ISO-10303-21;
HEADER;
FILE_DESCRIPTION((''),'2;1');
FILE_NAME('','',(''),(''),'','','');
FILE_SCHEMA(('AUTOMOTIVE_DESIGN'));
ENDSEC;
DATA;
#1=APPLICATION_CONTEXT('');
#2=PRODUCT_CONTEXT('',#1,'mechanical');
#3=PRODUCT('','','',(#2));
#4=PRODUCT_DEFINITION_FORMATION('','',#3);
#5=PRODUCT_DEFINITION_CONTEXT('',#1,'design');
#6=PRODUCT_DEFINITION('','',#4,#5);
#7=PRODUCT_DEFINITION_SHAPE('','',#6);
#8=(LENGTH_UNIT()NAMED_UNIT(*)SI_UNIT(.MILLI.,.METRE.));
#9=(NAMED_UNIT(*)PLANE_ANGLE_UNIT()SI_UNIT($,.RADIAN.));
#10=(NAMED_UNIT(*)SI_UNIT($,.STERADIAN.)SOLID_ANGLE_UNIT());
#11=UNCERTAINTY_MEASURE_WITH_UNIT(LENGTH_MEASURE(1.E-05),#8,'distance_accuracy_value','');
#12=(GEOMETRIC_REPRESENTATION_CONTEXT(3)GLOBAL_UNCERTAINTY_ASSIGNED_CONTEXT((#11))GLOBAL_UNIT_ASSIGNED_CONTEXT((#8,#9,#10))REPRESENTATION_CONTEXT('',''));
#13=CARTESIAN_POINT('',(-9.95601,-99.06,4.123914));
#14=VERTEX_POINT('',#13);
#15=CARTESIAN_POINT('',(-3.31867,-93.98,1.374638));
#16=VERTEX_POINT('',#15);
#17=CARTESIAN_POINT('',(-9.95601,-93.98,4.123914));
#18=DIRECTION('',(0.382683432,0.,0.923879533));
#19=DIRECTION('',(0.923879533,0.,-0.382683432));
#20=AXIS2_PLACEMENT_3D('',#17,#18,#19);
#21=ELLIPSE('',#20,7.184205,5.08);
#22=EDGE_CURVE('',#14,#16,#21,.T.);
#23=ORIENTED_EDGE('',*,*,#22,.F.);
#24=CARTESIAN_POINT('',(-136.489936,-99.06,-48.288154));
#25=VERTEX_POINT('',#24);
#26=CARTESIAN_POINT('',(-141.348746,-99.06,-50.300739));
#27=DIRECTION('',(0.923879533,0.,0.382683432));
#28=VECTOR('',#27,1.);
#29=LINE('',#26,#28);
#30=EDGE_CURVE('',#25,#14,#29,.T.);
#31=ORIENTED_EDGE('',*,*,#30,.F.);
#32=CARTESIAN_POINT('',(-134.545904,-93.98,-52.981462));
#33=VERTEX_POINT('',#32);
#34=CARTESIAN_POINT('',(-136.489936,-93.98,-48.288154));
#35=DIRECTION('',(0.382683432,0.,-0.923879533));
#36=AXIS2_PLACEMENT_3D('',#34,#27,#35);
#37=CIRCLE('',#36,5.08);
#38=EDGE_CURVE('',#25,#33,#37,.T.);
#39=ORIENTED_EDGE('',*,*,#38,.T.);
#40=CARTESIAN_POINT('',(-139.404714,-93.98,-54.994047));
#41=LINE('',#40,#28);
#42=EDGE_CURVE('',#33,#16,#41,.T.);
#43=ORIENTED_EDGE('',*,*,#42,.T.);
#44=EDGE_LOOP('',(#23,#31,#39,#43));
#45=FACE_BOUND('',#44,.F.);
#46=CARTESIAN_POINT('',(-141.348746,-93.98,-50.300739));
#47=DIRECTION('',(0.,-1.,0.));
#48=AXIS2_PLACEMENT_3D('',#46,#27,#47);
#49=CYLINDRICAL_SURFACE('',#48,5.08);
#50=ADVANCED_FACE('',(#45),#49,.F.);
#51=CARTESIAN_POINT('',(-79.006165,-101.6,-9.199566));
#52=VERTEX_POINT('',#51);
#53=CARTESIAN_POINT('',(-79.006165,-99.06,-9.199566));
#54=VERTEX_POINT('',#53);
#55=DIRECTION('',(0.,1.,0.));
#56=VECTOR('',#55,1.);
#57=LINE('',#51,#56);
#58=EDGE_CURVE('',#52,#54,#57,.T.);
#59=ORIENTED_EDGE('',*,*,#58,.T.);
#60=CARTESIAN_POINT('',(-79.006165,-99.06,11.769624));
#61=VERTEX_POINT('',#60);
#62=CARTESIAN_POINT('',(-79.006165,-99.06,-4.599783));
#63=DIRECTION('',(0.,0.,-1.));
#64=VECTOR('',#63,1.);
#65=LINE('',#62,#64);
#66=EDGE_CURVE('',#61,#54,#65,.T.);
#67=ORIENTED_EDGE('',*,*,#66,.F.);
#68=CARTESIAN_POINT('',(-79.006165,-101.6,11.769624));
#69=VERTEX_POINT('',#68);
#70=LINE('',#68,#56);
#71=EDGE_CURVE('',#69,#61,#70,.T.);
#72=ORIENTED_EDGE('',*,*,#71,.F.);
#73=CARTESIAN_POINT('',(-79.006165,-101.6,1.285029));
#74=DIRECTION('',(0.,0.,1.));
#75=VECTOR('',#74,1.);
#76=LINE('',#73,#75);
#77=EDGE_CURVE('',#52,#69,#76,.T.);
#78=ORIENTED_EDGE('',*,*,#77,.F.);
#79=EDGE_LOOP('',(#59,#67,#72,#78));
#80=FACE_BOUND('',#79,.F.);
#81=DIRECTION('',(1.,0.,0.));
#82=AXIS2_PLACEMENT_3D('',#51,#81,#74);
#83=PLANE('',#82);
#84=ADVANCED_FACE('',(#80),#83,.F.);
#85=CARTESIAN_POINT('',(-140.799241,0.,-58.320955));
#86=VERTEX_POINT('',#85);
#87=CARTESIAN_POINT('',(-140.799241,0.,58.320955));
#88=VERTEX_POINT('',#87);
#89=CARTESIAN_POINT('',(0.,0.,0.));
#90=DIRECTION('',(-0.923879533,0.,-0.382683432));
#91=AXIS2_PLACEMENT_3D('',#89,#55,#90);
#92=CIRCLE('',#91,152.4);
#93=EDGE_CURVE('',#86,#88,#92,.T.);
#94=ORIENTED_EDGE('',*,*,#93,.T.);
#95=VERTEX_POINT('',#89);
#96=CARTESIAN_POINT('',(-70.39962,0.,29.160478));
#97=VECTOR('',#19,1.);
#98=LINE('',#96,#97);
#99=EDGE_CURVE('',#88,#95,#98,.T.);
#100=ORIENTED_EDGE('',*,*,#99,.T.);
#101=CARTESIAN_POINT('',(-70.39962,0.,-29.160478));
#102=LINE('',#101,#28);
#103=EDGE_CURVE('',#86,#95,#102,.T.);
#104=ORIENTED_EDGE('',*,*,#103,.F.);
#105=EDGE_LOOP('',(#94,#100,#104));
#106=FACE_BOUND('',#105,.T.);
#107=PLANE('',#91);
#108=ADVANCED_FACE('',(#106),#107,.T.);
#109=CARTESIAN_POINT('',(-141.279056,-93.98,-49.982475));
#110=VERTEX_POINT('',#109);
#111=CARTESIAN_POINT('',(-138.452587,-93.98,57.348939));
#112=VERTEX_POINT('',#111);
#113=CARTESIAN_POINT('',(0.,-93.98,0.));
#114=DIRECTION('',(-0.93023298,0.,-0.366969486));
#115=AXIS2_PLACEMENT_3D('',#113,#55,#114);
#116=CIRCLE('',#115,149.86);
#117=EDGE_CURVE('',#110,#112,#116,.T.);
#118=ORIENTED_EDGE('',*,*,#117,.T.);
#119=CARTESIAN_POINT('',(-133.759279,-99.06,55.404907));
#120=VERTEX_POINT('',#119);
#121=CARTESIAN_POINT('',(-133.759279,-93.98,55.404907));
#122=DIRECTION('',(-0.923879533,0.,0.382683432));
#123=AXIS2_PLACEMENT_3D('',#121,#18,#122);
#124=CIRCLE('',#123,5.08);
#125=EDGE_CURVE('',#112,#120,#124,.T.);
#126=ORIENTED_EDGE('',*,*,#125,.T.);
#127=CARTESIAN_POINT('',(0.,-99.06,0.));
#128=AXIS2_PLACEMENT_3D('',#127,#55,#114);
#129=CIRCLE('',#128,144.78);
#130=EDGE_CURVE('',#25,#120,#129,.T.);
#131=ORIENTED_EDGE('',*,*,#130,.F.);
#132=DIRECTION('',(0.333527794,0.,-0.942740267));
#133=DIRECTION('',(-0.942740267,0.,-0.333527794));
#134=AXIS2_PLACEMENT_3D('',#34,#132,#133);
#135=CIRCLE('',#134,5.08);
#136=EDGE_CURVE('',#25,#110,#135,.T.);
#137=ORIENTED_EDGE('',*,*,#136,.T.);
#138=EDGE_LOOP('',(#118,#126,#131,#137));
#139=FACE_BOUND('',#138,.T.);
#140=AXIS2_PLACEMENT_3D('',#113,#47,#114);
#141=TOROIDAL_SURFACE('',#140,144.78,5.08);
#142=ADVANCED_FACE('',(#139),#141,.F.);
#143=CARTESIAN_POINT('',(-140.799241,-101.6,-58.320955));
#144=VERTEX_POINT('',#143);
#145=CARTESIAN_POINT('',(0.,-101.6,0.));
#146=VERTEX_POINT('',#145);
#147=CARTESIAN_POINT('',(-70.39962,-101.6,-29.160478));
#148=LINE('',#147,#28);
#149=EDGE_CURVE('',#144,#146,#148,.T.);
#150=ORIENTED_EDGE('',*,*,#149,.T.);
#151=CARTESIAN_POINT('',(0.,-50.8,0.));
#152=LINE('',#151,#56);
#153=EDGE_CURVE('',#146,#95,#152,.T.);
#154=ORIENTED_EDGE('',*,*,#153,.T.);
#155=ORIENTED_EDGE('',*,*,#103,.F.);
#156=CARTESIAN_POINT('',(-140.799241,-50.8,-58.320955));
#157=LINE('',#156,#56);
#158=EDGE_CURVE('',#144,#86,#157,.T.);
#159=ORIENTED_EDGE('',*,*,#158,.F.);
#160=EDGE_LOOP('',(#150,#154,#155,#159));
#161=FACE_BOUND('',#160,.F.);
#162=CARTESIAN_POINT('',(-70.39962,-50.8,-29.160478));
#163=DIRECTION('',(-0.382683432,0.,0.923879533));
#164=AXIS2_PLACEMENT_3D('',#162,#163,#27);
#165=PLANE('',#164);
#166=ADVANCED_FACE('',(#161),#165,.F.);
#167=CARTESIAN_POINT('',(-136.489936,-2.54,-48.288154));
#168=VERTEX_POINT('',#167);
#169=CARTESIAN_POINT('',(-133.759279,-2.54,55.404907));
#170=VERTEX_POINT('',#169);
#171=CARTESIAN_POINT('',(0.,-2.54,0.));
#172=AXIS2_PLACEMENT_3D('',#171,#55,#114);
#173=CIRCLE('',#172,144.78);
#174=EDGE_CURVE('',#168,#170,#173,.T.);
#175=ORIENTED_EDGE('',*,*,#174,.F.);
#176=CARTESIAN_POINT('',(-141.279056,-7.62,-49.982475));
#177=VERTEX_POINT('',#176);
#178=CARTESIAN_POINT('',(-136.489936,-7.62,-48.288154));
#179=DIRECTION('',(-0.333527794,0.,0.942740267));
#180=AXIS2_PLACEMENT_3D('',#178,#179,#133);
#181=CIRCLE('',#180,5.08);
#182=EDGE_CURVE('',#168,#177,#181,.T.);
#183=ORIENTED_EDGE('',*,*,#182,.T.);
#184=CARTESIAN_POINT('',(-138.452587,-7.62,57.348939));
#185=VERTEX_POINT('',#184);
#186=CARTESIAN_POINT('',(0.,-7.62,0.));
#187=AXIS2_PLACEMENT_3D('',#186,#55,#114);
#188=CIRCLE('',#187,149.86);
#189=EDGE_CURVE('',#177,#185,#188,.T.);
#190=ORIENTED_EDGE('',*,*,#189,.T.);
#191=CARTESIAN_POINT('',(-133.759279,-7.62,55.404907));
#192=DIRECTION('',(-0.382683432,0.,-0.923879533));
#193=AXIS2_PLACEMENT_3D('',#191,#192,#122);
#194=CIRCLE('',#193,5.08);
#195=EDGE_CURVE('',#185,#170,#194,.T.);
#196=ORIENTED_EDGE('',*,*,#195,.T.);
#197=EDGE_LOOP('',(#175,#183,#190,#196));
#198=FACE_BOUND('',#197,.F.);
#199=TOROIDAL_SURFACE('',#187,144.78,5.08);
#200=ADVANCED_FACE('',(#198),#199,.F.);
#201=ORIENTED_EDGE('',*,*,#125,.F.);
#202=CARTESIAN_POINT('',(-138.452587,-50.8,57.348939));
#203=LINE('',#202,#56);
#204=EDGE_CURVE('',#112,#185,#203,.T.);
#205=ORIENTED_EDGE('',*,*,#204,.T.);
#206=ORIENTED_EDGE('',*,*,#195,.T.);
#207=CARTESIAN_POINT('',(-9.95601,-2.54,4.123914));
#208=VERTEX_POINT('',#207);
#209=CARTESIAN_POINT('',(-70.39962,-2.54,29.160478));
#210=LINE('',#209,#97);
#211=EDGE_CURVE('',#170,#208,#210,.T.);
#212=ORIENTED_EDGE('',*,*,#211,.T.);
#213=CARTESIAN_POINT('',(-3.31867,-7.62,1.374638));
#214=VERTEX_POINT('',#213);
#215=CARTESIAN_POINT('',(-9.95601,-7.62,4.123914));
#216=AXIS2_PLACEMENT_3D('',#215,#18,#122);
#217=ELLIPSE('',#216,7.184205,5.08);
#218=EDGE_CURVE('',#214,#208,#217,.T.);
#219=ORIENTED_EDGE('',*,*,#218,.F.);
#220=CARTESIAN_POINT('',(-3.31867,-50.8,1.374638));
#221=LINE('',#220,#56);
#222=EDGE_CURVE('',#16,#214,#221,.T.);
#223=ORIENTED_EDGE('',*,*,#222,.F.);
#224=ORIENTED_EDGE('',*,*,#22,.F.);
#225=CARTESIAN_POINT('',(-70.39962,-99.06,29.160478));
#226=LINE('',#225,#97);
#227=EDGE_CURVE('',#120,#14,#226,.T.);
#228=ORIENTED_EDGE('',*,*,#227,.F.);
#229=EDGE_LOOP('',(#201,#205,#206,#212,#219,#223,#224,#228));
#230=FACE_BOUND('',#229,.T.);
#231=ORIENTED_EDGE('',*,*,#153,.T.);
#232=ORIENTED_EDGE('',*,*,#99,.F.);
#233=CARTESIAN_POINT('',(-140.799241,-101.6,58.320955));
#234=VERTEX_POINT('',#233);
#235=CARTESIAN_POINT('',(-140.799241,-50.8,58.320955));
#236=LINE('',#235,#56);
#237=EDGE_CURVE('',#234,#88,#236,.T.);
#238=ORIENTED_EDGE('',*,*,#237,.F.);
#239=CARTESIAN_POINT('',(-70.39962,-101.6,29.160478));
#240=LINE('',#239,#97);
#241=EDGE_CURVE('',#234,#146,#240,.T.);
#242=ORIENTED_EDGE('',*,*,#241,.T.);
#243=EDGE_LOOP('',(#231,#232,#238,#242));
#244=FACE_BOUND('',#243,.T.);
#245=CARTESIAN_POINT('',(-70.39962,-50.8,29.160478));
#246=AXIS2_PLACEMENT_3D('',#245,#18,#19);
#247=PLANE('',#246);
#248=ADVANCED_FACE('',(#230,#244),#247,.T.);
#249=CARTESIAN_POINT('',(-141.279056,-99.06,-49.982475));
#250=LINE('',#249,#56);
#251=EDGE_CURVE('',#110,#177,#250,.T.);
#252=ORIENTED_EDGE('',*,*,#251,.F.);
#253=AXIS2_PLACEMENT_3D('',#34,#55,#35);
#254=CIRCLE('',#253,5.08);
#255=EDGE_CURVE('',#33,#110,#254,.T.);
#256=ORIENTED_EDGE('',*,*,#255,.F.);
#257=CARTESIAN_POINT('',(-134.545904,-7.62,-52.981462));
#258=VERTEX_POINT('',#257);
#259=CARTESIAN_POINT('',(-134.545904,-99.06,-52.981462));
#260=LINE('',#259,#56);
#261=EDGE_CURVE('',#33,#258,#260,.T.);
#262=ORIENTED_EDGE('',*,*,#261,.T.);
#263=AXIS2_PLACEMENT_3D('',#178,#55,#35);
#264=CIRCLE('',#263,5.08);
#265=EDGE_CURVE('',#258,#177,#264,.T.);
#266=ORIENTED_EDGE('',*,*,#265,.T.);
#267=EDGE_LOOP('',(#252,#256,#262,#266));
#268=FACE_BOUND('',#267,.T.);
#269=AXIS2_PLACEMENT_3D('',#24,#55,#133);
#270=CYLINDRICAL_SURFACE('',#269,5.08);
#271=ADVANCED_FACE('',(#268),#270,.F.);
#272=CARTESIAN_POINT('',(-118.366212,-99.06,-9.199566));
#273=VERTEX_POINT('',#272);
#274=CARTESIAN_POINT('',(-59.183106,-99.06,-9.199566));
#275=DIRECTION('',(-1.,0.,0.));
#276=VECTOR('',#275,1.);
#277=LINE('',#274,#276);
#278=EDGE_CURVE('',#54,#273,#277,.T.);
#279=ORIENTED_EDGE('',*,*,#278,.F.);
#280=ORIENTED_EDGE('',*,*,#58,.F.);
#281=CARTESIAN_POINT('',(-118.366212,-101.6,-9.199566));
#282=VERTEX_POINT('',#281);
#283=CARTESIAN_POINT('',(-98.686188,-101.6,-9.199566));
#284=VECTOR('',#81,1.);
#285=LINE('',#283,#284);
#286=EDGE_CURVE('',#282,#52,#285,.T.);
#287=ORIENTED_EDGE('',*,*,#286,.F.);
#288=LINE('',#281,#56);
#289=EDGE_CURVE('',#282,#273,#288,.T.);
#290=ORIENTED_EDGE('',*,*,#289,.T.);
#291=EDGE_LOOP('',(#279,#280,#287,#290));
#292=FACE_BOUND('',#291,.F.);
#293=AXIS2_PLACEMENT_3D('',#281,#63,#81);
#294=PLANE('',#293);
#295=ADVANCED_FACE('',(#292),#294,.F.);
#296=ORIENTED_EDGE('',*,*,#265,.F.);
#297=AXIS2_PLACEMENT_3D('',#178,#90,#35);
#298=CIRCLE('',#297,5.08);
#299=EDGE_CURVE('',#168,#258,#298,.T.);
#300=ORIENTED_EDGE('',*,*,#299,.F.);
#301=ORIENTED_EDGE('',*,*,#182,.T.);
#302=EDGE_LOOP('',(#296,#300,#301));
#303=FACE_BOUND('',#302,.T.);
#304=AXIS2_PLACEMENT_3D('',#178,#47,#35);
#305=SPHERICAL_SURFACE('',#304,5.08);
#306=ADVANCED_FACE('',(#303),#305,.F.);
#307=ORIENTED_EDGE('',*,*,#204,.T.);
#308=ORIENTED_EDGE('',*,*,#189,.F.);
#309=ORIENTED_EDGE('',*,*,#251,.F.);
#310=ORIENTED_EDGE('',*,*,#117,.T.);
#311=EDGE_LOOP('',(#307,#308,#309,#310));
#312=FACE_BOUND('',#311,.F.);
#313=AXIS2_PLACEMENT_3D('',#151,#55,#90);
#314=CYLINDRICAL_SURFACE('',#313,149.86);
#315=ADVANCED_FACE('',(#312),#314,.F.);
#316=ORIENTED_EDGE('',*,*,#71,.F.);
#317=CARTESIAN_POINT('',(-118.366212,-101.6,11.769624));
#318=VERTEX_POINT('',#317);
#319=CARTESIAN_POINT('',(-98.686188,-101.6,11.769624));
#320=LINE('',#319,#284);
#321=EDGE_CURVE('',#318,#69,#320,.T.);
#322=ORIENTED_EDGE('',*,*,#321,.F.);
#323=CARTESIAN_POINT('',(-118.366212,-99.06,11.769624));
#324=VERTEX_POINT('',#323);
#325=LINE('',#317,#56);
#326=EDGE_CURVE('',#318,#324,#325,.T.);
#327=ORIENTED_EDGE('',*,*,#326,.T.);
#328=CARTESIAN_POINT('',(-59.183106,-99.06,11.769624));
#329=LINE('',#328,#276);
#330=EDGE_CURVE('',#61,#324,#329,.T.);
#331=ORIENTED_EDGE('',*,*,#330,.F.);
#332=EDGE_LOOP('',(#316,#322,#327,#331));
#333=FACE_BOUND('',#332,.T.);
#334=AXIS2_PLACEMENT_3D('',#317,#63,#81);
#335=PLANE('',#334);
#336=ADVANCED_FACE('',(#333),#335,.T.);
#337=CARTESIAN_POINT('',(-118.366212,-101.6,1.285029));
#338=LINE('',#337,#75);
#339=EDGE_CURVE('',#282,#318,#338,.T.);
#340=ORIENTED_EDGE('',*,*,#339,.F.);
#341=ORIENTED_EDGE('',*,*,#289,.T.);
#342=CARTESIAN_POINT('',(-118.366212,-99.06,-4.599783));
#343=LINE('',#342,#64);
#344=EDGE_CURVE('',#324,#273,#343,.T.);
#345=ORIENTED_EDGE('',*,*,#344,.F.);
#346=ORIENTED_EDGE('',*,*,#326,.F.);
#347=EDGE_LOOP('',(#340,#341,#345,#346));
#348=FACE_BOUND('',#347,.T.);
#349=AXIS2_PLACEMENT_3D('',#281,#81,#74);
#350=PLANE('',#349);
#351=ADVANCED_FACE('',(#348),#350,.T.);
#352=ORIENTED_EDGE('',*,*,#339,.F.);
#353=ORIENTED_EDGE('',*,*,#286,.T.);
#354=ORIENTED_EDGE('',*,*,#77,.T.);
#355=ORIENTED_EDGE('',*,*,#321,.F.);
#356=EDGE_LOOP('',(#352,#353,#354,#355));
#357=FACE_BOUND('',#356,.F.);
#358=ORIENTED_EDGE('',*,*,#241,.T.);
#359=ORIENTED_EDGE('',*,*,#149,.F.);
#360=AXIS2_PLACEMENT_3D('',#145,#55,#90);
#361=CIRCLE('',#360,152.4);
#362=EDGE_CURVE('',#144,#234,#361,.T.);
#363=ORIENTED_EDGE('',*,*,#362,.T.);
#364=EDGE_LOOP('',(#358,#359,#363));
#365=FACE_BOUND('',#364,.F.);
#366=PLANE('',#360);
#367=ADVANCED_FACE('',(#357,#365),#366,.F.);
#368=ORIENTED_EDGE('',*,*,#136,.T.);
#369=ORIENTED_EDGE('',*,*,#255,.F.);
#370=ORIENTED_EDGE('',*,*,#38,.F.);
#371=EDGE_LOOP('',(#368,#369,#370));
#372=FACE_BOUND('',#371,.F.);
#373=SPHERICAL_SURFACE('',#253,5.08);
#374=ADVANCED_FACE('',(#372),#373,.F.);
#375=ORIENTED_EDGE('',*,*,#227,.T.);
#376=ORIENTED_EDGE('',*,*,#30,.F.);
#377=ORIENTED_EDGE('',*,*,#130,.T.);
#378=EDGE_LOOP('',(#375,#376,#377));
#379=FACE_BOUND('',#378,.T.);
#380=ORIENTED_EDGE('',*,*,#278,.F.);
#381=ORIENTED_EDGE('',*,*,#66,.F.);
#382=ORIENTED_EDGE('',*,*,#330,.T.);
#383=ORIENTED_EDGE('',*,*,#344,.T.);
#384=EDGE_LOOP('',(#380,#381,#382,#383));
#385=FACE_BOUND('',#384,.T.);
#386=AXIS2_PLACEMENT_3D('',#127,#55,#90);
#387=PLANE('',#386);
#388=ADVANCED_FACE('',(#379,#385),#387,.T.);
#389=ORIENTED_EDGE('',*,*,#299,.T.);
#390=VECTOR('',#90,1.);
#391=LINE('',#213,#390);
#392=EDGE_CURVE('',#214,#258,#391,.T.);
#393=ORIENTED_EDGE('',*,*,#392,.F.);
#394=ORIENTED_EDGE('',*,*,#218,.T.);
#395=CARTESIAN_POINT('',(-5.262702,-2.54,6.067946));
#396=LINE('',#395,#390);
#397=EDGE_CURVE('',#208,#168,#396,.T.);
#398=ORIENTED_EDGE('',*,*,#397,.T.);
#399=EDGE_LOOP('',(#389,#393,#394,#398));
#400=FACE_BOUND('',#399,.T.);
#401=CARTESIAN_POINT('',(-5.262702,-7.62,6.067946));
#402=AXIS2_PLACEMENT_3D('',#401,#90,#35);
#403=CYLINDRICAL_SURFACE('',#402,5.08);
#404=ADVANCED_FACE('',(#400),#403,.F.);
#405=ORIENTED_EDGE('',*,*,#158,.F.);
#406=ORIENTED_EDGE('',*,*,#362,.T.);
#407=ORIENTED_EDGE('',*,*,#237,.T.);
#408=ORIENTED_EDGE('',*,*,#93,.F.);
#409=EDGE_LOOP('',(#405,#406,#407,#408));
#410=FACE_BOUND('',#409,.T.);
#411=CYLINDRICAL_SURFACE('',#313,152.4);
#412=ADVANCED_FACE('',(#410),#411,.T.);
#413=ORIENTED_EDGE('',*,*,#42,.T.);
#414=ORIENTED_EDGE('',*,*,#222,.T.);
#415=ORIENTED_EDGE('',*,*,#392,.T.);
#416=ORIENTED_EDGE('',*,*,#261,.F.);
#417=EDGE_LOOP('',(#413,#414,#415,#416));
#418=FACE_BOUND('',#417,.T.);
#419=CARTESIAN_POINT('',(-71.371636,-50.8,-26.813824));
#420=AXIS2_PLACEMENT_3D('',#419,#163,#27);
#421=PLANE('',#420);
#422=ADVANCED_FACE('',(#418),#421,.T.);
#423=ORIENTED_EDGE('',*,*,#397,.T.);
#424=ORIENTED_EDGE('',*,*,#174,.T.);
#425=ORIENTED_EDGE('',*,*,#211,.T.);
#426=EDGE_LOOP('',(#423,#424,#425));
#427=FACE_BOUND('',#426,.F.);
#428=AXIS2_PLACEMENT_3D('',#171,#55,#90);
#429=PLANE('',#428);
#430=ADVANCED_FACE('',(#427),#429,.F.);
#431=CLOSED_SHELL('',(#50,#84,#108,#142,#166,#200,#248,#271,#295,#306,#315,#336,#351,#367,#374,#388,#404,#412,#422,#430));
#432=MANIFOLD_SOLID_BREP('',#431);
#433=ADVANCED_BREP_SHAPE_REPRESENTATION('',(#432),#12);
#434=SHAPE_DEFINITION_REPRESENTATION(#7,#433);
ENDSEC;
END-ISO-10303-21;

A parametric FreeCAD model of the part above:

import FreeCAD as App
import Part
import Sketcher

V = App.Vector
Q = App.Units.Quantity


def edges_at(feature, points):
    """Names of the edges that pass closest to the given points."""
    edges = feature.Shape.Edges
    near = lambda p: min(range(len(edges)), key=lambda i: edges[i].distToShape(Part.Vertex(*p))[0])
    return sorted({f"Edge{near(p) + 1}" for p in points})


def faces_at(feature, points):
    """Names of the faces that lie closest to the given points."""
    faces = feature.Shape.Faces
    near = lambda p: min(range(len(faces)), key=lambda i: faces[i].distToShape(Part.Vertex(*p))[0])
    return sorted({f"Face{near(p) + 1}" for p in points})


def add_polygon(sketch, points):
    """Adds a closed chain of lines whose ends are joined by coincident constraints."""
    first, n = sketch.GeometryCount, len(points)
    for a, b in zip(points, points[1:] + points[:1]):
        sketch.addGeometry(Part.LineSegment(App.Vector(*a, 0), App.Vector(*b, 0)), False)
    for i in range(n):
        sketch.addConstraint(Sketcher.Constraint("Coincident", first + i, 2, first + (i + 1) % n, 1))

doc = App.newDocument("Part")
params = doc.addObject("Spreadsheet::Sheet", "Params")
for row, (alias, value) in enumerate([
    ("sketch1_width", "6 in"),
    ("sketch1_height", "4 in"),
    ("revolution_angle", "45 deg"),
    ("thickness_wall", "0.1 in"),
    ("fillet_radius", "0.2 in"),
    ("pocket1_length", "1 in"),
], start=1):
    params.set(f"A{row}", alias)
    params.set(f"B{row}", "=" + value)
    params.setAlias(f"B{row}", alias)

body = doc.addObject("PartDesign::Body", "Body")

sketch1 = doc.addObject("Sketcher::SketchObject", "Sketch")
body.addObject(sketch1)
sketch1.Placement = App.Placement(V(0, 0, 0), App.Rotation(V(0.923879533, 0, 0.382683432), V(0, 1.000000001, 0), V(-0.382683432, 0, 0.923879533), "ZXY"))
add_polygon(sketch1, [(-152, 0), (-152, -102), (0, -102), (0, 0)])
sketch1.addConstraint([
    Sketcher.Constraint("Vertical", 0),
    Sketcher.Constraint("Horizontal", 1),
    Sketcher.Constraint("Vertical", 2),
    Sketcher.Constraint("Horizontal", 3),
    Sketcher.Constraint("Coincident", 2, 2, -1, 1),
    Sketcher.Constraint("DistanceX", 1, 1, 1, 2, Q("6 in")),
    Sketcher.Constraint("DistanceY", 0, 2, 0, 1, Q("4 in")),
])
sketch1.setExpression("Constraints[9]", "Params.sketch1_width")
sketch1.setExpression("Constraints[10]", "Params.sketch1_height")
revolution = doc.addObject("PartDesign::Revolution", "Revolution")
body.addObject(revolution)
revolution.Profile = sketch1
revolution.ReferenceAxis = (sketch1, ["V_Axis"])
revolution.setExpression("Angle", "Params.revolution_angle")
doc.recompute()

thickness = doc.addObject("PartDesign::Thickness", "Thickness")
body.addObject(thickness)
thickness.Base = (revolution, faces_at(revolution, [(-70.4, -50.8, 29.16)]))
thickness.setExpression("Value", "Params.thickness_wall")
thickness.Reversed = True
thickness.Join = "Arc"
doc.recompute()

fillet = doc.addObject("PartDesign::Fillet", "Fillet")
body.addObject(fillet)
fillet.Base = (thickness, edges_at(thickness, [
    (-71.362, -99.06, -26.81),
    (-149.855, -99.06, 1.27),
    (-139.405, -50.8, -54.994),
    (-71.362, -2.54, -26.81),
    (-149.855, -2.54, 1.27),
]))
fillet.setExpression("Radius", "Params.fillet_radius")

sketch2 = doc.addObject("Sketcher::SketchObject", "Sketch001")
body.addObject(sketch2)
sketch2.AttachmentSupport = (doc.XZ_Plane, [""])
sketch2.MapMode = "FlatFace"
sketch2.AttachmentOffset = App.Placement(V(0, 0, 4 * 25.4), App.Rotation())
add_polygon(sketch2, [(-118, 12), (-118, -9), (-79, -9), (-79, 12)])
sketch2.addConstraint([
    Sketcher.Constraint("Vertical", 0),
    Sketcher.Constraint("Horizontal", 1),
    Sketcher.Constraint("Vertical", 2),
    Sketcher.Constraint("Horizontal", 3),
    Sketcher.Constraint("DistanceY", 0, 2, 0, 1, Q("20.969191 mm")),
    Sketcher.Constraint("DistanceX", 1, 1, 1, 2, Q("39.360046 mm")),
    Sketcher.Constraint("DistanceX", 0, 2, -1, 1, Q("118.366212 mm")),
    Sketcher.Constraint("DistanceY", 0, 2, -1, 1, Q("9.199566 mm")),
])
pocket1 = doc.addObject("PartDesign::Pocket", "Pocket")
body.addObject(pocket1)
pocket1.Profile = sketch2
pocket1.setExpression("Length", "Params.pocket1_length")

doc.recompute()
